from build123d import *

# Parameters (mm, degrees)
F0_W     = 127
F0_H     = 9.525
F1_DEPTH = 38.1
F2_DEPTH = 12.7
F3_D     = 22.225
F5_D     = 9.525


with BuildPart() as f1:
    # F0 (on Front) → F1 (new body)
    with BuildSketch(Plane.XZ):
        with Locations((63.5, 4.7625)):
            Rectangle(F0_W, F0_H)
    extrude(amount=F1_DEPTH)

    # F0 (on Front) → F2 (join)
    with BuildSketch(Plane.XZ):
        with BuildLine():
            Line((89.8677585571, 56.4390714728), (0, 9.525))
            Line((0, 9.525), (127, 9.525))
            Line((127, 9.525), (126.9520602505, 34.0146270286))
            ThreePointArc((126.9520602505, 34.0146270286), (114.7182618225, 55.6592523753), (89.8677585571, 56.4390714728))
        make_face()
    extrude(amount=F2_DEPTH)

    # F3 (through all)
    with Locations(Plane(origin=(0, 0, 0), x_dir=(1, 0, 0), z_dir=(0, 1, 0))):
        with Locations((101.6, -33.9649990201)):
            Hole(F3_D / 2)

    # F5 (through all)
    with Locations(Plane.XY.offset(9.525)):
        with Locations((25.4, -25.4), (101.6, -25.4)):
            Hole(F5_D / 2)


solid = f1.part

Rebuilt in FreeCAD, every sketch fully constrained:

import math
import FreeCAD as App
import Part
import Sketcher
from FreeCAD import Vector
Q = App.Units.Quantity


def add_polygon(sketch, points):
    """Adds a closed chain of lines whose ends are joined by coincident constraints."""
    first, n = sketch.GeometryCount, len(points)
    for a, b in zip(points, points[1:] + points[:1]):
        sketch.addGeometry(Part.LineSegment(App.Vector(*a, 0), App.Vector(*b, 0)), False)
    for i in range(n):
        sketch.addConstraint(Sketcher.Constraint("Coincident", first + i, 2, first + (i + 1) % n, 1))

doc = App.newDocument("Part")
body = doc.addObject("PartDesign::Body", "Body")

# Sketch on XZ plane
sketch1 = body.newObject("Sketcher::SketchObject", "Sketch")
sketch1.AttachmentSupport = (doc.getObject("XZ_Plane"), [""])
sketch1.MapMode = "FlatFace"
add_polygon(sketch1, [(0, 10), (0, 0), (127, 0), (127, 10)])  # lines 0-3
sketch1.addConstraint([
    Sketcher.Constraint("Vertical", 0),
    Sketcher.Constraint("Horizontal", 1),
    Sketcher.Constraint("Vertical", 2),
    Sketcher.Constraint("Horizontal", 3),
    Sketcher.Constraint("Coincident", 0, 2, -1, 1),
    Sketcher.Constraint("DistanceX", 1, 1, 1, 2, Q("5 in")),
    Sketcher.Constraint("DistanceY", 0, 2, 0, 1, Q("0.375 in")),
])
pad1 = body.newObject("PartDesign::Pad", "Pad")
pad1.Profile = sketch1
pad1.Length = Q("1.5 in")

# Sketch on XZ plane
sketch2 = body.newObject("Sketcher::SketchObject", "Sketch001")
sketch2.AttachmentSupport = (doc.getObject("XZ_Plane"), [""])
sketch2.MapMode = "FlatFace"
sketch2.addGeometry([
    Part.LineSegment(Vector(90, 56, 0), Vector(0, 10, 0)),
    Part.LineSegment(Vector(0, 10, 0), Vector(127, 10, 0)),
    Part.LineSegment(Vector(127, 10, 0), Vector(127, 34, 0)),
    Part.ArcOfCircle(Part.Circle(Vector(102, 34, 0), Vector(0, 0, 1), 25), math.radians(0), math.radians(118)),
], False)
sketch2.addConstraint([
    Sketcher.Constraint("Coincident", 0, 2, 1, 1),
    Sketcher.Constraint("Coincident", 1, 2, 2, 1),
    Sketcher.Constraint("Tangent", 2, 2, 3, 1),
    Sketcher.Constraint("Tangent", 3, 2, 0, 1),
    Sketcher.Constraint("Horizontal", 1),
    Sketcher.Constraint("PointOnObject", 0, 2, -2),
    Sketcher.Constraint("DistanceX", 1, 1, 1, 2, Q("5 in")),
    Sketcher.Constraint("DistanceX", -1, 1, 3, 3, Q("4 in")),
    Sketcher.Constraint("DistanceY", -1, 1, 0, 2, Q("0.375 in")),
    Sketcher.Constraint("Radius", 3, Q("25.352109 mm")),
    Sketcher.Constraint("DistanceY", -1, 1, 3, 3, Q("33.964999 mm")),
])
pad2 = body.newObject("PartDesign::Pad", "Pad001")
pad2.Profile = sketch2
pad2.Length = Q("0.5 in")

# Sketch on XZ plane
sketch3 = body.newObject("Sketcher::SketchObject", "Sketch002")
sketch3.AttachmentSupport = (doc.getObject("XZ_Plane"), [""])
sketch3.MapMode = "FlatFace"
sketch3.addGeometry(Part.Circle(Vector(102, 34, 0), Vector(0, 0, 1), 11), False)
sketch3.addConstraint([
    Sketcher.Constraint("Diameter", 0, Q("0.875 in")),
    Sketcher.Constraint("DistanceX", -1, 1, 0, 3, Q("4 in")),
    Sketcher.Constraint("DistanceY", -1, 1, 0, 3, Q("33.964999 mm")),
])
doc.recompute()
hole = body.newObject("PartDesign::Hole", "Hole")
hole.Profile = sketch3
hole.ThreadType = "None"
hole.Diameter = Q("0.875 in")
hole.DepthType = "ThroughAll"
hole.Reversed = True

# Sketch on XY plane
sketch4 = body.newObject("Sketcher::SketchObject", "Sketch003")
sketch4.AttachmentSupport = (doc.getObject("XY_Plane"), [""])
sketch4.MapMode = "FlatFace"
sketch4.AttachmentOffset = App.Placement(Vector(0, 0, 0.375 * 25.4), App.Rotation())
sketch4.addGeometry([
    Part.Circle(Vector(25.4, -25.4, 0), Vector(0, 0, 1), 4.8),
    Part.Circle(Vector(101.6, -25.4, 0), Vector(0, 0, 1), 4.8),
], False)
sketch4.addConstraint([
    Sketcher.Constraint("Equal", 0, 1),
    Sketcher.Constraint("Horizontal", 0, 3, 1, 3),
    Sketcher.Constraint("Diameter", 0, Q("0.375 in")),
    Sketcher.Constraint("DistanceX", -1, 1, 0, 3, Q("1 in")),
    Sketcher.Constraint("DistanceY", 0, 3, -1, 1, Q("1 in")),
    Sketcher.Constraint("DistanceX", -1, 1, 1, 3, Q("4 in")),
])
doc.recompute()
hole2 = body.newObject("PartDesign::Hole", "Hole001")
hole2.Profile = sketch4
hole2.ThreadType = "None"
hole2.Diameter = Q("0.375 in")
hole2.DepthType = "ThroughAll"

doc.recompute()
